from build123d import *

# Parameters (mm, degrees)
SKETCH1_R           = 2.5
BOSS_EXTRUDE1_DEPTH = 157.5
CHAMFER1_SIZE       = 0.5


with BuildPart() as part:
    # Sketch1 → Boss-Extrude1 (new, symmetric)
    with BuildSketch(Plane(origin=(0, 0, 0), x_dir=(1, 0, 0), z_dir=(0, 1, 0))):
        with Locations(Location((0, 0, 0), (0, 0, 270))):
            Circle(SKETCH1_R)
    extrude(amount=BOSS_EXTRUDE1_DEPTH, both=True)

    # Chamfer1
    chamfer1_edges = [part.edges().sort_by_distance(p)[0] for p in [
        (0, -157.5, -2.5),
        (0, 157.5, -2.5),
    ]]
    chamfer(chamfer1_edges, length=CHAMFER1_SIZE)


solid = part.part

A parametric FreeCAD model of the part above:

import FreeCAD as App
import Part
import Sketcher

V = App.Vector


def edges_at(feature, points):
    """Names of the edges that pass closest to the given points."""
    edges = feature.Shape.Edges
    near = lambda p: min(range(len(edges)), key=lambda i: edges[i].distToShape(Part.Vertex(*p))[0])
    return sorted({f"Edge{near(p) + 1}" for p in points})

doc = App.newDocument("Part")
params = doc.addObject("Spreadsheet::Sheet", "Params")
for row, (alias, value) in enumerate([
    ("sketch1_diameter", "5 mm"),
    ("pad1_length", "315 mm"),
    ("chamfer_size", "0.5 mm"),
], start=1):
    params.set(f"A{row}", alias)
    params.set(f"B{row}", "=" + value)
    params.setAlias(f"B{row}", alias)

body = doc.addObject("PartDesign::Body", "Body")

# Sketch on XZ plane
sketch1 = body.newObject("Sketcher::SketchObject", "Sketch")
sketch1.AttachmentSupport = (doc.getObject("XZ_Plane"), [""])
sketch1.MapMode = "FlatFace"
sketch1.addGeometry(Part.Circle(V(0, 0, 0), V(0, 0, 1), 2.5), False)
sketch1.addConstraint(Sketcher.Constraint("Coincident", 0, 3, -1, 1))
sketch1.addConstraint(Sketcher.Constraint("Diameter", 0, 5.0))
sketch1.setExpression("Constraints[1]", "Params.sketch1_diameter")
pad1 = body.newObject("PartDesign::Pad", "Pad")
pad1.Profile = sketch1
pad1.setExpression("Length", "Params.pad1_length")
pad1.Midplane = True
doc.recompute()

chamfer = body.newObject("PartDesign::Chamfer", "Chamfer")
chamfer.Base = (pad1, edges_at(pad1, [(0, -157.5, -2.5), (0, 157.5, -2.5)]))
chamfer.setExpression("Size", "Params.chamfer_size")

doc.recompute()
